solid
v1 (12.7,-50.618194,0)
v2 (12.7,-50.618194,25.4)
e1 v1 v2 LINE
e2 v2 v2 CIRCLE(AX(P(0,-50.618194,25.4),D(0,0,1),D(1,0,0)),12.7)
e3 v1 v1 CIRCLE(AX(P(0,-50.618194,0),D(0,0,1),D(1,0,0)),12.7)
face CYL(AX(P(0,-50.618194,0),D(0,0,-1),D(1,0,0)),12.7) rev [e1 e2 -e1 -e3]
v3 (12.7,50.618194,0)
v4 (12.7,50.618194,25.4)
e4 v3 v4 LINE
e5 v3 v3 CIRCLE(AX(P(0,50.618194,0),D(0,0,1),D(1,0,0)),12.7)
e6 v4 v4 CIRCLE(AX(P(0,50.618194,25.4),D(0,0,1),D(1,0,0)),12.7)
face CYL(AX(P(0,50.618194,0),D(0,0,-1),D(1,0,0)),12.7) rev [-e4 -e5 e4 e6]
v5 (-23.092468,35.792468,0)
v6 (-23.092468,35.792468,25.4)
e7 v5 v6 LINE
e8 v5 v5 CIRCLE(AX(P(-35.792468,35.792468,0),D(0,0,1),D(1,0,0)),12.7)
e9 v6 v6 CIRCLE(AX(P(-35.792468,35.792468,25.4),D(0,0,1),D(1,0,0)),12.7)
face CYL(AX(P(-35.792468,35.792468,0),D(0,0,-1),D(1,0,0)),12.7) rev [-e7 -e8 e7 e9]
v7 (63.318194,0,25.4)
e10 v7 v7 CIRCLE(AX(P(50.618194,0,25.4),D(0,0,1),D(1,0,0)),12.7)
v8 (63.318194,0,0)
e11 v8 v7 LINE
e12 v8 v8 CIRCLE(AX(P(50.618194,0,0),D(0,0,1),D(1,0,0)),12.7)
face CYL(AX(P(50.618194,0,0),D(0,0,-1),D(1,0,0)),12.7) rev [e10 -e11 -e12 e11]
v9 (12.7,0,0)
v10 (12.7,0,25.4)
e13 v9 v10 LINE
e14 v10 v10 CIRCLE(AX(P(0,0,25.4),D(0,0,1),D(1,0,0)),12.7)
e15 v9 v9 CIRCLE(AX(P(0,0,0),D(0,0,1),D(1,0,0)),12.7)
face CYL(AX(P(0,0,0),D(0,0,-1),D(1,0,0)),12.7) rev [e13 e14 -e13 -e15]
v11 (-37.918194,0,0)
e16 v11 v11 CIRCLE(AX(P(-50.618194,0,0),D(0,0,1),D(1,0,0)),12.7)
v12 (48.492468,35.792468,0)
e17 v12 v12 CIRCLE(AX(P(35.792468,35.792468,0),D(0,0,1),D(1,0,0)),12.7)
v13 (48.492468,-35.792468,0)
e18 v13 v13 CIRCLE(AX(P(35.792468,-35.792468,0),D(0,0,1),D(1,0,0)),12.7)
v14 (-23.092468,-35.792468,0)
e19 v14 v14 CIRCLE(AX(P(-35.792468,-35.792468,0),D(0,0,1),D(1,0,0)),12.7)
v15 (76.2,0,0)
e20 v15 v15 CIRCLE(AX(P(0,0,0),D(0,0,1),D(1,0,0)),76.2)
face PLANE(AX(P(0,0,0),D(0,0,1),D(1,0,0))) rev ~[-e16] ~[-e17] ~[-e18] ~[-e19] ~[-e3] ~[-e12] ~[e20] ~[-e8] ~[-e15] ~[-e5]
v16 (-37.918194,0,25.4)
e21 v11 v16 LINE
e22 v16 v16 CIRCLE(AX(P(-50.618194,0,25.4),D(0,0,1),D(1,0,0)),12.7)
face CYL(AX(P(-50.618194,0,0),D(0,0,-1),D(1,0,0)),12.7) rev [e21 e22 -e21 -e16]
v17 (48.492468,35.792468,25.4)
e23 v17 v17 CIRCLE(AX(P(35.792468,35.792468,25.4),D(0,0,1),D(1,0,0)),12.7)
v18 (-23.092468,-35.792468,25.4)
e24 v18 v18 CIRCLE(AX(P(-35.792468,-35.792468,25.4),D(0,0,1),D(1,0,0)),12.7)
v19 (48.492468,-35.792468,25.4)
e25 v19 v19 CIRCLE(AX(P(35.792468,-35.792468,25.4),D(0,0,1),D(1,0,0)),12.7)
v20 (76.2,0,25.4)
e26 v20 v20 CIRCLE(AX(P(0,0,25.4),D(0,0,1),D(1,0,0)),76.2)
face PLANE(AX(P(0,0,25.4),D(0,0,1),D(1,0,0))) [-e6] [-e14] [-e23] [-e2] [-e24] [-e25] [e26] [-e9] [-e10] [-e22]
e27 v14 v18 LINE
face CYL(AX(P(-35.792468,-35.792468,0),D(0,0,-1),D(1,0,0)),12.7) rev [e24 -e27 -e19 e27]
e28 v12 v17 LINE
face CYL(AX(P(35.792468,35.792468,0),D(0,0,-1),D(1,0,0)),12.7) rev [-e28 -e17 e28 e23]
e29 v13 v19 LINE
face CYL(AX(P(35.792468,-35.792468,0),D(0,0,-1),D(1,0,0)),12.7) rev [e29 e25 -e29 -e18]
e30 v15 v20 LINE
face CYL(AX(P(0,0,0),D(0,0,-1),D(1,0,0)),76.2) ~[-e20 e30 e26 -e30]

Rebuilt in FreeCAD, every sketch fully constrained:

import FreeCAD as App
import Part
import Sketcher

V = App.Vector
Q = App.Units.Quantity

doc = App.newDocument("Part")
params = doc.addObject("Spreadsheet::Sheet", "Params")
for row, (alias, value) in enumerate([
    ("sketch1_diameter", "6 in"),
    ("sketch1_diameter2", "1 in"),
    ("pad1_length", "1 in"),
], start=1):
    params.set(f"A{row}", alias)
    params.set(f"B{row}", "=" + value)
    params.setAlias(f"B{row}", alias)

body = doc.addObject("PartDesign::Body", "Body")

# Sketch on XY plane
sketch1 = doc.addObject("Sketcher::SketchObject", "Sketch")
body.addObject(sketch1)
sketch1.AttachmentSupport = (doc.XY_Plane, [""])
sketch1.MapMode = "FlatFace"
sketch1.addGeometry([
    Part.Circle(V(0, 0, 0), V(0, 0, 1), 76),  # 0
    Part.Circle(V(-36, -36, 0), V(0, 0, 1), 13),  # 1
    Part.Circle(V(0, -51, 0), V(0, 0, 1), 13),  # 2
    Part.Circle(V(36, -36, 0), V(0, 0, 1), 13),  # 3
    Part.Circle(V(-51, 0, 0), V(0, 0, 1), 13),  # 4
    Part.Circle(V(-36, 36, 0), V(0, 0, 1), 13),  # 5
    Part.Circle(V(0, 0, 0), V(0, 0, 1), 13),  # 6
    Part.Circle(V(51, 0, 0), V(0, 0, 1), 13),  # 7
    Part.Circle(V(0, 51, 0), V(0, 0, 1), 13),  # 8
    Part.Circle(V(36, 36, 0), V(0, 0, 1), 13),  # 9
], False)
sketch1.addConstraint([
    Sketcher.Constraint("Coincident", 0, 3, -1, 1),
    Sketcher.Constraint("Coincident", 6, 3, -1, 1),
    Sketcher.Constraint("Equal", 1, 2),
    Sketcher.Constraint("Equal", 2, 3),
    Sketcher.Constraint("Equal", 3, 4),
    Sketcher.Constraint("Equal", 4, 5),
    Sketcher.Constraint("Equal", 5, 6),
    Sketcher.Constraint("Equal", 6, 7),
    Sketcher.Constraint("Equal", 7, 8),
    Sketcher.Constraint("Equal", 8, 9),
    Sketcher.Constraint("Symmetric", 3, 3, 5, 3, -1, 1),
    Sketcher.Constraint("Symmetric", 4, 3, 7, 3, -1, 1),
    Sketcher.Constraint("Symmetric", 2, 3, 8, 3, -1, 1),
    Sketcher.Constraint("Symmetric", 1, 3, 9, 3, -1, 1),
    Sketcher.Constraint("Symmetric", 1, 3, 3, 3, -2),
    Sketcher.Constraint("PointOnObject", 2, 3, -2),
    Sketcher.Constraint("PointOnObject", 4, 3, -1),
    Sketcher.Constraint("Diameter", 0, Q("6 in")),
    Sketcher.Constraint("Diameter", 1, Q("1 in")),
    Sketcher.Constraint("DistanceX", 1, 3, -1, 1, 35.792468),
    Sketcher.Constraint("DistanceY", 1, 3, -1, 1, 35.792468),
    Sketcher.Constraint("DistanceY", 2, 3, -1, 1, 50.618194),
    Sketcher.Constraint("DistanceX", 4, 3, -1, 1, 50.618194),
])
sketch1.setExpression("Constraints[17]", "Params.sketch1_diameter")
sketch1.setExpression("Constraints[18]", "Params.sketch1_diameter2")
pad1 = doc.addObject("PartDesign::Pad", "Pad")
body.addObject(pad1)
pad1.Profile = sketch1
pad1.setExpression("Length", "Params.pad1_length")

doc.recompute()
